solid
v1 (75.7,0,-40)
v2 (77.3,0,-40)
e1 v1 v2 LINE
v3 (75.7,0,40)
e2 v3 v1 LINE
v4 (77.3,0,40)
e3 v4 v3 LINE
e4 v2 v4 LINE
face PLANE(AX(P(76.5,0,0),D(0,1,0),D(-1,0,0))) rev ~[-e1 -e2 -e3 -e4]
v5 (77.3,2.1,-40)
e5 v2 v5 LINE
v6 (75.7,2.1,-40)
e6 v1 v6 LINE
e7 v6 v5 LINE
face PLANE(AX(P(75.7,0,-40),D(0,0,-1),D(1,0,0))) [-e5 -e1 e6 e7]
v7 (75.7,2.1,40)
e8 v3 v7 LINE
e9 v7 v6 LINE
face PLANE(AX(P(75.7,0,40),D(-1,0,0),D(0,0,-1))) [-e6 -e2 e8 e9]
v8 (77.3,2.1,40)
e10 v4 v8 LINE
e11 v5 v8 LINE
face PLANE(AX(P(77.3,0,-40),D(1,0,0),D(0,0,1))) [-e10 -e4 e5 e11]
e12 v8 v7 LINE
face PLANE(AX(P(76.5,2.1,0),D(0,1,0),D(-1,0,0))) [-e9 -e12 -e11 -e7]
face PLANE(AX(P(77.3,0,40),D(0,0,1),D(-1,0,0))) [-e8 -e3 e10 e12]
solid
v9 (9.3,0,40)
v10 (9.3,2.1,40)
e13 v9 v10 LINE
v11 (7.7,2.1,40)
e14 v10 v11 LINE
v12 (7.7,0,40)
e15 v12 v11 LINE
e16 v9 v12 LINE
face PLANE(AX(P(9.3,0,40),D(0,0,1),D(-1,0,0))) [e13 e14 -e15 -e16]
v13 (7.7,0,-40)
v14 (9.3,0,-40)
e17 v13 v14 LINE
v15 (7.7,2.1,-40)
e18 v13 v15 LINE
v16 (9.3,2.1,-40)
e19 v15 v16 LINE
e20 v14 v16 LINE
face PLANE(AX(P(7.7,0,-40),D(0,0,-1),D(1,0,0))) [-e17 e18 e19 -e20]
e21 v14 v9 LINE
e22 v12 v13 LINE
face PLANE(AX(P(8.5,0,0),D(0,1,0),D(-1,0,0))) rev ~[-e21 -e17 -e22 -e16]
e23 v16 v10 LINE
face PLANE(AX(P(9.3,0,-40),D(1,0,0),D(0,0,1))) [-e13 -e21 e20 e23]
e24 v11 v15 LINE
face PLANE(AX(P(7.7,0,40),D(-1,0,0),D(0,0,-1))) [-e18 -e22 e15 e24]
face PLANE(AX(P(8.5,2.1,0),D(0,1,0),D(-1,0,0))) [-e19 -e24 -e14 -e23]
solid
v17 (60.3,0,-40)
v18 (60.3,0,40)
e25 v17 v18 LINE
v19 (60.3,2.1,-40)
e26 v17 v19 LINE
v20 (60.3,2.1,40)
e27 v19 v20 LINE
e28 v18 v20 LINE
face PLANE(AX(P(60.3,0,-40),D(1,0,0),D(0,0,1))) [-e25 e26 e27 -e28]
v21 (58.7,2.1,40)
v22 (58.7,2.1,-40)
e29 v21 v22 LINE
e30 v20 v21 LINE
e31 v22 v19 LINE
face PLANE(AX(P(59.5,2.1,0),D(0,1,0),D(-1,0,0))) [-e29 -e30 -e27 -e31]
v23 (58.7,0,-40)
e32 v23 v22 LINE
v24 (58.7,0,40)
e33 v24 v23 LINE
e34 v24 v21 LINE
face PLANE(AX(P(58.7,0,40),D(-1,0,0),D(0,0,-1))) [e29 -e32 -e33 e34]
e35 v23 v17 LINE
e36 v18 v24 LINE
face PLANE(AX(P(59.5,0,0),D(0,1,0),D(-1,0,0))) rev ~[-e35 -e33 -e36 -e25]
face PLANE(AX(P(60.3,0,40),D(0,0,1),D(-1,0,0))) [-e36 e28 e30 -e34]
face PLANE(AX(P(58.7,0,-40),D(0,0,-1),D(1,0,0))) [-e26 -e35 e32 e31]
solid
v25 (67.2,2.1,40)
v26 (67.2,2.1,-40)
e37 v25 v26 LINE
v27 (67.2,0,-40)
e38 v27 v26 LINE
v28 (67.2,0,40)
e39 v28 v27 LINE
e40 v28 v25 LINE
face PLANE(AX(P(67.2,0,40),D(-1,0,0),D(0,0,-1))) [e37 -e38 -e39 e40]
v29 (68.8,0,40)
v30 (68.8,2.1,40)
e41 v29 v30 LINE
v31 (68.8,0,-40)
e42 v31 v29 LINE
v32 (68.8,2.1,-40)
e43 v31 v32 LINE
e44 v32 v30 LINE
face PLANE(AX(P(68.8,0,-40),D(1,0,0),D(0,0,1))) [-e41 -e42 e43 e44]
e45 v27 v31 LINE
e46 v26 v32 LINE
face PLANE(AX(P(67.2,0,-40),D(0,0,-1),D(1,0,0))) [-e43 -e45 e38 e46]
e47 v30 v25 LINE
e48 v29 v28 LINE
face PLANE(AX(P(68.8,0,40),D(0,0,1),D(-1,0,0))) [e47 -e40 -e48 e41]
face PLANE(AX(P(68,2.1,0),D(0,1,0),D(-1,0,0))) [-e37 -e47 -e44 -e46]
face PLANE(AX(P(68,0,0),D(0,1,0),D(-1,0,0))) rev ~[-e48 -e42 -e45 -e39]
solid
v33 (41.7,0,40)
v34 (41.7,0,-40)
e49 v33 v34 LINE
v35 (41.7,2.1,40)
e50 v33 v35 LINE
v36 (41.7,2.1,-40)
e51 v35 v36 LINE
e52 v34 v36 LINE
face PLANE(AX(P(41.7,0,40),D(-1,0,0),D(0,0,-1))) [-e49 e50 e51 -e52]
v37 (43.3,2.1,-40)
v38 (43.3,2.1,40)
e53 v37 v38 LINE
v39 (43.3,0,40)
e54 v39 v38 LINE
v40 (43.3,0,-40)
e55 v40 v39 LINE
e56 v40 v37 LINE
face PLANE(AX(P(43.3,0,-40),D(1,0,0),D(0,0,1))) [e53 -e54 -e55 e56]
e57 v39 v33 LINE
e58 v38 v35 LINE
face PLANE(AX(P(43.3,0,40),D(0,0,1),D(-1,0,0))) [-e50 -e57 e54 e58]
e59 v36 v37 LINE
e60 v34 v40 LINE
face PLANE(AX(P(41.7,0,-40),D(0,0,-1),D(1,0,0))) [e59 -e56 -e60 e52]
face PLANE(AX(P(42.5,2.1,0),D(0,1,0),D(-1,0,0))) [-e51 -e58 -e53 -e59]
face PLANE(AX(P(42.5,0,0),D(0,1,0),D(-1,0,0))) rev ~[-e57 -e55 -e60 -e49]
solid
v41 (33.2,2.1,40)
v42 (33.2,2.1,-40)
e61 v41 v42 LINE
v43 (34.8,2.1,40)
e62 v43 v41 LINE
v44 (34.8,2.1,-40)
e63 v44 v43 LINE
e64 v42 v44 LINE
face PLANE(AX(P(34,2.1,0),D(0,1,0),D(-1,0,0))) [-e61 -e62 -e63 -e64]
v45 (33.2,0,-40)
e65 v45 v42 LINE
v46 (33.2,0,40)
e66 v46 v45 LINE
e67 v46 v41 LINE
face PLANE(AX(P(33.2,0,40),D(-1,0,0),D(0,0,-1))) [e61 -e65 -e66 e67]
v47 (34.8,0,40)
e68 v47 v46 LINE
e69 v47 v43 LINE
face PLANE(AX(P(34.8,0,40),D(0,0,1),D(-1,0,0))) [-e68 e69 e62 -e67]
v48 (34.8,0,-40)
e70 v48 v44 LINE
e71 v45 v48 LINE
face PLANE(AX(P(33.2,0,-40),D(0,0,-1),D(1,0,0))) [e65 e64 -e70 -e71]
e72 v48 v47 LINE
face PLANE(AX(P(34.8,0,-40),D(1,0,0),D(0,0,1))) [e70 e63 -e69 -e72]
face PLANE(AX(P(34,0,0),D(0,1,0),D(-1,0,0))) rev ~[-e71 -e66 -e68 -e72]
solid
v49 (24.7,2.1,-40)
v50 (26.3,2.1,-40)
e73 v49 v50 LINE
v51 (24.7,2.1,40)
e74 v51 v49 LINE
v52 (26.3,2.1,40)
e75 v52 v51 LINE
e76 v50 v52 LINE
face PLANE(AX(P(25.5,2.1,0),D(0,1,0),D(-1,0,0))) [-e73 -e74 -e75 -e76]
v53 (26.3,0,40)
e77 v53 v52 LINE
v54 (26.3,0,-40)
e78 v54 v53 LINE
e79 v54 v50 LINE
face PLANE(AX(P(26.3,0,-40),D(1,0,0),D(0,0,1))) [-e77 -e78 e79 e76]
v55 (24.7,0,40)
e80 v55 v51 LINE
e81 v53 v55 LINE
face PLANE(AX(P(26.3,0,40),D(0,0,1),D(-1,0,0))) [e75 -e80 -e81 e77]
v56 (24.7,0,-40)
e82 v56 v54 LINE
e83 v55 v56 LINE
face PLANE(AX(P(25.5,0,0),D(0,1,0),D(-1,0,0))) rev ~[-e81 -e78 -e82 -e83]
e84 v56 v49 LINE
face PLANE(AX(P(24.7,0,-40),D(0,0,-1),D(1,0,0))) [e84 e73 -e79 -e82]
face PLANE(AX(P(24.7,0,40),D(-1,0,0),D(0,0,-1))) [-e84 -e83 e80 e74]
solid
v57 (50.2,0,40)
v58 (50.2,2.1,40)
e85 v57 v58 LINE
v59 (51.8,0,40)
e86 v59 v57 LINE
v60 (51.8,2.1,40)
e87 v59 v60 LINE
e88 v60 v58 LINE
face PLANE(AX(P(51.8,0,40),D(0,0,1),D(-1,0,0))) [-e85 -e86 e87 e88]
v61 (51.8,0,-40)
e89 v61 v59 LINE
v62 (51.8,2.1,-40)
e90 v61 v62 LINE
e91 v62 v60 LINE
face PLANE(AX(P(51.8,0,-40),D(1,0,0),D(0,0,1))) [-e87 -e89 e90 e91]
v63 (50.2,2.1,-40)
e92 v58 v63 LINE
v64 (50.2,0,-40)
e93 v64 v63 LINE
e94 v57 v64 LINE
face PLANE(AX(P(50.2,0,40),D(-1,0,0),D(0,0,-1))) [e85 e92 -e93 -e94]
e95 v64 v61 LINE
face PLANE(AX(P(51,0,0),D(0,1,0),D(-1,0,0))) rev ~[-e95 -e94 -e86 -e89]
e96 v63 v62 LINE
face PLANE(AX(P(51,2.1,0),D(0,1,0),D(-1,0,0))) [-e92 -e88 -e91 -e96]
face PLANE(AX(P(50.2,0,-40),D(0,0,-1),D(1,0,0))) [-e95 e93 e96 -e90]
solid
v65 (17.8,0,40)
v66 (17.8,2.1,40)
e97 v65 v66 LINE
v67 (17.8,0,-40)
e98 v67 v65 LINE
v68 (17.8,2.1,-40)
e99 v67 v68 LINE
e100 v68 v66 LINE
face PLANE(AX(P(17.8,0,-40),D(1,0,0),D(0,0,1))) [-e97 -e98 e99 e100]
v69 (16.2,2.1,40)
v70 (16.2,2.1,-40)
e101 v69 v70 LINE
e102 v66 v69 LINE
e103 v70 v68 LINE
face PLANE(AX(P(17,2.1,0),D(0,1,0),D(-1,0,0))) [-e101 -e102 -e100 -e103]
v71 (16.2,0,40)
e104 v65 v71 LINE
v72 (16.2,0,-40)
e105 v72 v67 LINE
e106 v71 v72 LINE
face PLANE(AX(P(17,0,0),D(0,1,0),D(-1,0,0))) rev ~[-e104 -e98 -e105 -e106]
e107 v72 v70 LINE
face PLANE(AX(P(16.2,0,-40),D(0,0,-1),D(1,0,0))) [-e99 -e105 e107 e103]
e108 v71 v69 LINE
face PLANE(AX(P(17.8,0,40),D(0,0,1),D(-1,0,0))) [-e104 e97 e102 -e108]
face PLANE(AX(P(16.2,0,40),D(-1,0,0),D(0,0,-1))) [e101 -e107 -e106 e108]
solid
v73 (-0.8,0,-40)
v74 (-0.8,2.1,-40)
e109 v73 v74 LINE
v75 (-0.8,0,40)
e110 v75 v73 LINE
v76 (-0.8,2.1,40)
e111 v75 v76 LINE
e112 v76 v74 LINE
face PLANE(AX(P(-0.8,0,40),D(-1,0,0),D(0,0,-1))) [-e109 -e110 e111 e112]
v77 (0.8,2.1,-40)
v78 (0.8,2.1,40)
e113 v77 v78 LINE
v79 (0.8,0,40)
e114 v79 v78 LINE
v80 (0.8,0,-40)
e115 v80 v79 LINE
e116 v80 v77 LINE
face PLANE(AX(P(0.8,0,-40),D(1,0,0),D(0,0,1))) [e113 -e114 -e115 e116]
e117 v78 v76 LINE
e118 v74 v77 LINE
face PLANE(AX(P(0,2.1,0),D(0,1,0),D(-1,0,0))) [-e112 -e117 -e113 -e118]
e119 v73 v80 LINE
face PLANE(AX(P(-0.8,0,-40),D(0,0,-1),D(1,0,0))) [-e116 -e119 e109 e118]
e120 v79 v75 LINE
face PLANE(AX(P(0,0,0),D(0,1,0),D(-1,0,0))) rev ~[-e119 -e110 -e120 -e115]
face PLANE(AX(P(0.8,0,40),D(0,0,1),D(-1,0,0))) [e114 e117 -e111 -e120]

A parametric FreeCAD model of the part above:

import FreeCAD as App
import Part
import Sketcher

V = App.Vector


def add_polygon(sketch, points):
    """Adds a closed chain of lines whose ends are joined by coincident constraints."""
    first, n = sketch.GeometryCount, len(points)
    for a, b in zip(points, points[1:] + points[:1]):
        sketch.addGeometry(Part.LineSegment(App.Vector(*a, 0), App.Vector(*b, 0)), False)
    for i in range(n):
        sketch.addConstraint(Sketcher.Constraint("Coincident", first + i, 2, first + (i + 1) % n, 1))

doc = App.newDocument("Part")
body = doc.addObject("PartDesign::Body", "Body")
body.AllowCompound = True

sketch1 = body.newObject("Sketcher::SketchObject", "Sketch")
sketch1.AttachmentSupport = (doc.getObject("XZ_Plane"), [""])
sketch1.MapMode = "FlatFace"
add_polygon(sketch1, [(0.8, -40), (-0.8, -40), (-0.8, 40), (0.8, 40)])
sketch1.addConstraint([
    Sketcher.Constraint("Horizontal", 0),
    Sketcher.Constraint("Vertical", 1),
    Sketcher.Constraint("Horizontal", 2),
    Sketcher.Constraint("Vertical", 3),
    Sketcher.Constraint("Symmetric", 0, 2, 2, 2, -1, 1),
    Sketcher.Constraint("DistanceY", 1, 1, 1, 2, 80.0),
    Sketcher.Constraint("DistanceX", 0, 2, 0, 1, 1.6),
])
pad1 = body.newObject("PartDesign::Pad", "Pad")
pad1.Profile = sketch1
pad1.Length = 2.1
pad1.Reversed = True
doc.recompute()

linearpattern = body.newObject("PartDesign::LinearPattern", "LinearPattern")
linearpattern.Originals = [pad1]
linearpattern.Direction = (doc.getObject("X_Axis"), [""])
linearpattern.Mode = "offset"
linearpattern.Offset = 8.5
linearpattern.Occurrences = 10
body.Tip = linearpattern

doc.recompute()
